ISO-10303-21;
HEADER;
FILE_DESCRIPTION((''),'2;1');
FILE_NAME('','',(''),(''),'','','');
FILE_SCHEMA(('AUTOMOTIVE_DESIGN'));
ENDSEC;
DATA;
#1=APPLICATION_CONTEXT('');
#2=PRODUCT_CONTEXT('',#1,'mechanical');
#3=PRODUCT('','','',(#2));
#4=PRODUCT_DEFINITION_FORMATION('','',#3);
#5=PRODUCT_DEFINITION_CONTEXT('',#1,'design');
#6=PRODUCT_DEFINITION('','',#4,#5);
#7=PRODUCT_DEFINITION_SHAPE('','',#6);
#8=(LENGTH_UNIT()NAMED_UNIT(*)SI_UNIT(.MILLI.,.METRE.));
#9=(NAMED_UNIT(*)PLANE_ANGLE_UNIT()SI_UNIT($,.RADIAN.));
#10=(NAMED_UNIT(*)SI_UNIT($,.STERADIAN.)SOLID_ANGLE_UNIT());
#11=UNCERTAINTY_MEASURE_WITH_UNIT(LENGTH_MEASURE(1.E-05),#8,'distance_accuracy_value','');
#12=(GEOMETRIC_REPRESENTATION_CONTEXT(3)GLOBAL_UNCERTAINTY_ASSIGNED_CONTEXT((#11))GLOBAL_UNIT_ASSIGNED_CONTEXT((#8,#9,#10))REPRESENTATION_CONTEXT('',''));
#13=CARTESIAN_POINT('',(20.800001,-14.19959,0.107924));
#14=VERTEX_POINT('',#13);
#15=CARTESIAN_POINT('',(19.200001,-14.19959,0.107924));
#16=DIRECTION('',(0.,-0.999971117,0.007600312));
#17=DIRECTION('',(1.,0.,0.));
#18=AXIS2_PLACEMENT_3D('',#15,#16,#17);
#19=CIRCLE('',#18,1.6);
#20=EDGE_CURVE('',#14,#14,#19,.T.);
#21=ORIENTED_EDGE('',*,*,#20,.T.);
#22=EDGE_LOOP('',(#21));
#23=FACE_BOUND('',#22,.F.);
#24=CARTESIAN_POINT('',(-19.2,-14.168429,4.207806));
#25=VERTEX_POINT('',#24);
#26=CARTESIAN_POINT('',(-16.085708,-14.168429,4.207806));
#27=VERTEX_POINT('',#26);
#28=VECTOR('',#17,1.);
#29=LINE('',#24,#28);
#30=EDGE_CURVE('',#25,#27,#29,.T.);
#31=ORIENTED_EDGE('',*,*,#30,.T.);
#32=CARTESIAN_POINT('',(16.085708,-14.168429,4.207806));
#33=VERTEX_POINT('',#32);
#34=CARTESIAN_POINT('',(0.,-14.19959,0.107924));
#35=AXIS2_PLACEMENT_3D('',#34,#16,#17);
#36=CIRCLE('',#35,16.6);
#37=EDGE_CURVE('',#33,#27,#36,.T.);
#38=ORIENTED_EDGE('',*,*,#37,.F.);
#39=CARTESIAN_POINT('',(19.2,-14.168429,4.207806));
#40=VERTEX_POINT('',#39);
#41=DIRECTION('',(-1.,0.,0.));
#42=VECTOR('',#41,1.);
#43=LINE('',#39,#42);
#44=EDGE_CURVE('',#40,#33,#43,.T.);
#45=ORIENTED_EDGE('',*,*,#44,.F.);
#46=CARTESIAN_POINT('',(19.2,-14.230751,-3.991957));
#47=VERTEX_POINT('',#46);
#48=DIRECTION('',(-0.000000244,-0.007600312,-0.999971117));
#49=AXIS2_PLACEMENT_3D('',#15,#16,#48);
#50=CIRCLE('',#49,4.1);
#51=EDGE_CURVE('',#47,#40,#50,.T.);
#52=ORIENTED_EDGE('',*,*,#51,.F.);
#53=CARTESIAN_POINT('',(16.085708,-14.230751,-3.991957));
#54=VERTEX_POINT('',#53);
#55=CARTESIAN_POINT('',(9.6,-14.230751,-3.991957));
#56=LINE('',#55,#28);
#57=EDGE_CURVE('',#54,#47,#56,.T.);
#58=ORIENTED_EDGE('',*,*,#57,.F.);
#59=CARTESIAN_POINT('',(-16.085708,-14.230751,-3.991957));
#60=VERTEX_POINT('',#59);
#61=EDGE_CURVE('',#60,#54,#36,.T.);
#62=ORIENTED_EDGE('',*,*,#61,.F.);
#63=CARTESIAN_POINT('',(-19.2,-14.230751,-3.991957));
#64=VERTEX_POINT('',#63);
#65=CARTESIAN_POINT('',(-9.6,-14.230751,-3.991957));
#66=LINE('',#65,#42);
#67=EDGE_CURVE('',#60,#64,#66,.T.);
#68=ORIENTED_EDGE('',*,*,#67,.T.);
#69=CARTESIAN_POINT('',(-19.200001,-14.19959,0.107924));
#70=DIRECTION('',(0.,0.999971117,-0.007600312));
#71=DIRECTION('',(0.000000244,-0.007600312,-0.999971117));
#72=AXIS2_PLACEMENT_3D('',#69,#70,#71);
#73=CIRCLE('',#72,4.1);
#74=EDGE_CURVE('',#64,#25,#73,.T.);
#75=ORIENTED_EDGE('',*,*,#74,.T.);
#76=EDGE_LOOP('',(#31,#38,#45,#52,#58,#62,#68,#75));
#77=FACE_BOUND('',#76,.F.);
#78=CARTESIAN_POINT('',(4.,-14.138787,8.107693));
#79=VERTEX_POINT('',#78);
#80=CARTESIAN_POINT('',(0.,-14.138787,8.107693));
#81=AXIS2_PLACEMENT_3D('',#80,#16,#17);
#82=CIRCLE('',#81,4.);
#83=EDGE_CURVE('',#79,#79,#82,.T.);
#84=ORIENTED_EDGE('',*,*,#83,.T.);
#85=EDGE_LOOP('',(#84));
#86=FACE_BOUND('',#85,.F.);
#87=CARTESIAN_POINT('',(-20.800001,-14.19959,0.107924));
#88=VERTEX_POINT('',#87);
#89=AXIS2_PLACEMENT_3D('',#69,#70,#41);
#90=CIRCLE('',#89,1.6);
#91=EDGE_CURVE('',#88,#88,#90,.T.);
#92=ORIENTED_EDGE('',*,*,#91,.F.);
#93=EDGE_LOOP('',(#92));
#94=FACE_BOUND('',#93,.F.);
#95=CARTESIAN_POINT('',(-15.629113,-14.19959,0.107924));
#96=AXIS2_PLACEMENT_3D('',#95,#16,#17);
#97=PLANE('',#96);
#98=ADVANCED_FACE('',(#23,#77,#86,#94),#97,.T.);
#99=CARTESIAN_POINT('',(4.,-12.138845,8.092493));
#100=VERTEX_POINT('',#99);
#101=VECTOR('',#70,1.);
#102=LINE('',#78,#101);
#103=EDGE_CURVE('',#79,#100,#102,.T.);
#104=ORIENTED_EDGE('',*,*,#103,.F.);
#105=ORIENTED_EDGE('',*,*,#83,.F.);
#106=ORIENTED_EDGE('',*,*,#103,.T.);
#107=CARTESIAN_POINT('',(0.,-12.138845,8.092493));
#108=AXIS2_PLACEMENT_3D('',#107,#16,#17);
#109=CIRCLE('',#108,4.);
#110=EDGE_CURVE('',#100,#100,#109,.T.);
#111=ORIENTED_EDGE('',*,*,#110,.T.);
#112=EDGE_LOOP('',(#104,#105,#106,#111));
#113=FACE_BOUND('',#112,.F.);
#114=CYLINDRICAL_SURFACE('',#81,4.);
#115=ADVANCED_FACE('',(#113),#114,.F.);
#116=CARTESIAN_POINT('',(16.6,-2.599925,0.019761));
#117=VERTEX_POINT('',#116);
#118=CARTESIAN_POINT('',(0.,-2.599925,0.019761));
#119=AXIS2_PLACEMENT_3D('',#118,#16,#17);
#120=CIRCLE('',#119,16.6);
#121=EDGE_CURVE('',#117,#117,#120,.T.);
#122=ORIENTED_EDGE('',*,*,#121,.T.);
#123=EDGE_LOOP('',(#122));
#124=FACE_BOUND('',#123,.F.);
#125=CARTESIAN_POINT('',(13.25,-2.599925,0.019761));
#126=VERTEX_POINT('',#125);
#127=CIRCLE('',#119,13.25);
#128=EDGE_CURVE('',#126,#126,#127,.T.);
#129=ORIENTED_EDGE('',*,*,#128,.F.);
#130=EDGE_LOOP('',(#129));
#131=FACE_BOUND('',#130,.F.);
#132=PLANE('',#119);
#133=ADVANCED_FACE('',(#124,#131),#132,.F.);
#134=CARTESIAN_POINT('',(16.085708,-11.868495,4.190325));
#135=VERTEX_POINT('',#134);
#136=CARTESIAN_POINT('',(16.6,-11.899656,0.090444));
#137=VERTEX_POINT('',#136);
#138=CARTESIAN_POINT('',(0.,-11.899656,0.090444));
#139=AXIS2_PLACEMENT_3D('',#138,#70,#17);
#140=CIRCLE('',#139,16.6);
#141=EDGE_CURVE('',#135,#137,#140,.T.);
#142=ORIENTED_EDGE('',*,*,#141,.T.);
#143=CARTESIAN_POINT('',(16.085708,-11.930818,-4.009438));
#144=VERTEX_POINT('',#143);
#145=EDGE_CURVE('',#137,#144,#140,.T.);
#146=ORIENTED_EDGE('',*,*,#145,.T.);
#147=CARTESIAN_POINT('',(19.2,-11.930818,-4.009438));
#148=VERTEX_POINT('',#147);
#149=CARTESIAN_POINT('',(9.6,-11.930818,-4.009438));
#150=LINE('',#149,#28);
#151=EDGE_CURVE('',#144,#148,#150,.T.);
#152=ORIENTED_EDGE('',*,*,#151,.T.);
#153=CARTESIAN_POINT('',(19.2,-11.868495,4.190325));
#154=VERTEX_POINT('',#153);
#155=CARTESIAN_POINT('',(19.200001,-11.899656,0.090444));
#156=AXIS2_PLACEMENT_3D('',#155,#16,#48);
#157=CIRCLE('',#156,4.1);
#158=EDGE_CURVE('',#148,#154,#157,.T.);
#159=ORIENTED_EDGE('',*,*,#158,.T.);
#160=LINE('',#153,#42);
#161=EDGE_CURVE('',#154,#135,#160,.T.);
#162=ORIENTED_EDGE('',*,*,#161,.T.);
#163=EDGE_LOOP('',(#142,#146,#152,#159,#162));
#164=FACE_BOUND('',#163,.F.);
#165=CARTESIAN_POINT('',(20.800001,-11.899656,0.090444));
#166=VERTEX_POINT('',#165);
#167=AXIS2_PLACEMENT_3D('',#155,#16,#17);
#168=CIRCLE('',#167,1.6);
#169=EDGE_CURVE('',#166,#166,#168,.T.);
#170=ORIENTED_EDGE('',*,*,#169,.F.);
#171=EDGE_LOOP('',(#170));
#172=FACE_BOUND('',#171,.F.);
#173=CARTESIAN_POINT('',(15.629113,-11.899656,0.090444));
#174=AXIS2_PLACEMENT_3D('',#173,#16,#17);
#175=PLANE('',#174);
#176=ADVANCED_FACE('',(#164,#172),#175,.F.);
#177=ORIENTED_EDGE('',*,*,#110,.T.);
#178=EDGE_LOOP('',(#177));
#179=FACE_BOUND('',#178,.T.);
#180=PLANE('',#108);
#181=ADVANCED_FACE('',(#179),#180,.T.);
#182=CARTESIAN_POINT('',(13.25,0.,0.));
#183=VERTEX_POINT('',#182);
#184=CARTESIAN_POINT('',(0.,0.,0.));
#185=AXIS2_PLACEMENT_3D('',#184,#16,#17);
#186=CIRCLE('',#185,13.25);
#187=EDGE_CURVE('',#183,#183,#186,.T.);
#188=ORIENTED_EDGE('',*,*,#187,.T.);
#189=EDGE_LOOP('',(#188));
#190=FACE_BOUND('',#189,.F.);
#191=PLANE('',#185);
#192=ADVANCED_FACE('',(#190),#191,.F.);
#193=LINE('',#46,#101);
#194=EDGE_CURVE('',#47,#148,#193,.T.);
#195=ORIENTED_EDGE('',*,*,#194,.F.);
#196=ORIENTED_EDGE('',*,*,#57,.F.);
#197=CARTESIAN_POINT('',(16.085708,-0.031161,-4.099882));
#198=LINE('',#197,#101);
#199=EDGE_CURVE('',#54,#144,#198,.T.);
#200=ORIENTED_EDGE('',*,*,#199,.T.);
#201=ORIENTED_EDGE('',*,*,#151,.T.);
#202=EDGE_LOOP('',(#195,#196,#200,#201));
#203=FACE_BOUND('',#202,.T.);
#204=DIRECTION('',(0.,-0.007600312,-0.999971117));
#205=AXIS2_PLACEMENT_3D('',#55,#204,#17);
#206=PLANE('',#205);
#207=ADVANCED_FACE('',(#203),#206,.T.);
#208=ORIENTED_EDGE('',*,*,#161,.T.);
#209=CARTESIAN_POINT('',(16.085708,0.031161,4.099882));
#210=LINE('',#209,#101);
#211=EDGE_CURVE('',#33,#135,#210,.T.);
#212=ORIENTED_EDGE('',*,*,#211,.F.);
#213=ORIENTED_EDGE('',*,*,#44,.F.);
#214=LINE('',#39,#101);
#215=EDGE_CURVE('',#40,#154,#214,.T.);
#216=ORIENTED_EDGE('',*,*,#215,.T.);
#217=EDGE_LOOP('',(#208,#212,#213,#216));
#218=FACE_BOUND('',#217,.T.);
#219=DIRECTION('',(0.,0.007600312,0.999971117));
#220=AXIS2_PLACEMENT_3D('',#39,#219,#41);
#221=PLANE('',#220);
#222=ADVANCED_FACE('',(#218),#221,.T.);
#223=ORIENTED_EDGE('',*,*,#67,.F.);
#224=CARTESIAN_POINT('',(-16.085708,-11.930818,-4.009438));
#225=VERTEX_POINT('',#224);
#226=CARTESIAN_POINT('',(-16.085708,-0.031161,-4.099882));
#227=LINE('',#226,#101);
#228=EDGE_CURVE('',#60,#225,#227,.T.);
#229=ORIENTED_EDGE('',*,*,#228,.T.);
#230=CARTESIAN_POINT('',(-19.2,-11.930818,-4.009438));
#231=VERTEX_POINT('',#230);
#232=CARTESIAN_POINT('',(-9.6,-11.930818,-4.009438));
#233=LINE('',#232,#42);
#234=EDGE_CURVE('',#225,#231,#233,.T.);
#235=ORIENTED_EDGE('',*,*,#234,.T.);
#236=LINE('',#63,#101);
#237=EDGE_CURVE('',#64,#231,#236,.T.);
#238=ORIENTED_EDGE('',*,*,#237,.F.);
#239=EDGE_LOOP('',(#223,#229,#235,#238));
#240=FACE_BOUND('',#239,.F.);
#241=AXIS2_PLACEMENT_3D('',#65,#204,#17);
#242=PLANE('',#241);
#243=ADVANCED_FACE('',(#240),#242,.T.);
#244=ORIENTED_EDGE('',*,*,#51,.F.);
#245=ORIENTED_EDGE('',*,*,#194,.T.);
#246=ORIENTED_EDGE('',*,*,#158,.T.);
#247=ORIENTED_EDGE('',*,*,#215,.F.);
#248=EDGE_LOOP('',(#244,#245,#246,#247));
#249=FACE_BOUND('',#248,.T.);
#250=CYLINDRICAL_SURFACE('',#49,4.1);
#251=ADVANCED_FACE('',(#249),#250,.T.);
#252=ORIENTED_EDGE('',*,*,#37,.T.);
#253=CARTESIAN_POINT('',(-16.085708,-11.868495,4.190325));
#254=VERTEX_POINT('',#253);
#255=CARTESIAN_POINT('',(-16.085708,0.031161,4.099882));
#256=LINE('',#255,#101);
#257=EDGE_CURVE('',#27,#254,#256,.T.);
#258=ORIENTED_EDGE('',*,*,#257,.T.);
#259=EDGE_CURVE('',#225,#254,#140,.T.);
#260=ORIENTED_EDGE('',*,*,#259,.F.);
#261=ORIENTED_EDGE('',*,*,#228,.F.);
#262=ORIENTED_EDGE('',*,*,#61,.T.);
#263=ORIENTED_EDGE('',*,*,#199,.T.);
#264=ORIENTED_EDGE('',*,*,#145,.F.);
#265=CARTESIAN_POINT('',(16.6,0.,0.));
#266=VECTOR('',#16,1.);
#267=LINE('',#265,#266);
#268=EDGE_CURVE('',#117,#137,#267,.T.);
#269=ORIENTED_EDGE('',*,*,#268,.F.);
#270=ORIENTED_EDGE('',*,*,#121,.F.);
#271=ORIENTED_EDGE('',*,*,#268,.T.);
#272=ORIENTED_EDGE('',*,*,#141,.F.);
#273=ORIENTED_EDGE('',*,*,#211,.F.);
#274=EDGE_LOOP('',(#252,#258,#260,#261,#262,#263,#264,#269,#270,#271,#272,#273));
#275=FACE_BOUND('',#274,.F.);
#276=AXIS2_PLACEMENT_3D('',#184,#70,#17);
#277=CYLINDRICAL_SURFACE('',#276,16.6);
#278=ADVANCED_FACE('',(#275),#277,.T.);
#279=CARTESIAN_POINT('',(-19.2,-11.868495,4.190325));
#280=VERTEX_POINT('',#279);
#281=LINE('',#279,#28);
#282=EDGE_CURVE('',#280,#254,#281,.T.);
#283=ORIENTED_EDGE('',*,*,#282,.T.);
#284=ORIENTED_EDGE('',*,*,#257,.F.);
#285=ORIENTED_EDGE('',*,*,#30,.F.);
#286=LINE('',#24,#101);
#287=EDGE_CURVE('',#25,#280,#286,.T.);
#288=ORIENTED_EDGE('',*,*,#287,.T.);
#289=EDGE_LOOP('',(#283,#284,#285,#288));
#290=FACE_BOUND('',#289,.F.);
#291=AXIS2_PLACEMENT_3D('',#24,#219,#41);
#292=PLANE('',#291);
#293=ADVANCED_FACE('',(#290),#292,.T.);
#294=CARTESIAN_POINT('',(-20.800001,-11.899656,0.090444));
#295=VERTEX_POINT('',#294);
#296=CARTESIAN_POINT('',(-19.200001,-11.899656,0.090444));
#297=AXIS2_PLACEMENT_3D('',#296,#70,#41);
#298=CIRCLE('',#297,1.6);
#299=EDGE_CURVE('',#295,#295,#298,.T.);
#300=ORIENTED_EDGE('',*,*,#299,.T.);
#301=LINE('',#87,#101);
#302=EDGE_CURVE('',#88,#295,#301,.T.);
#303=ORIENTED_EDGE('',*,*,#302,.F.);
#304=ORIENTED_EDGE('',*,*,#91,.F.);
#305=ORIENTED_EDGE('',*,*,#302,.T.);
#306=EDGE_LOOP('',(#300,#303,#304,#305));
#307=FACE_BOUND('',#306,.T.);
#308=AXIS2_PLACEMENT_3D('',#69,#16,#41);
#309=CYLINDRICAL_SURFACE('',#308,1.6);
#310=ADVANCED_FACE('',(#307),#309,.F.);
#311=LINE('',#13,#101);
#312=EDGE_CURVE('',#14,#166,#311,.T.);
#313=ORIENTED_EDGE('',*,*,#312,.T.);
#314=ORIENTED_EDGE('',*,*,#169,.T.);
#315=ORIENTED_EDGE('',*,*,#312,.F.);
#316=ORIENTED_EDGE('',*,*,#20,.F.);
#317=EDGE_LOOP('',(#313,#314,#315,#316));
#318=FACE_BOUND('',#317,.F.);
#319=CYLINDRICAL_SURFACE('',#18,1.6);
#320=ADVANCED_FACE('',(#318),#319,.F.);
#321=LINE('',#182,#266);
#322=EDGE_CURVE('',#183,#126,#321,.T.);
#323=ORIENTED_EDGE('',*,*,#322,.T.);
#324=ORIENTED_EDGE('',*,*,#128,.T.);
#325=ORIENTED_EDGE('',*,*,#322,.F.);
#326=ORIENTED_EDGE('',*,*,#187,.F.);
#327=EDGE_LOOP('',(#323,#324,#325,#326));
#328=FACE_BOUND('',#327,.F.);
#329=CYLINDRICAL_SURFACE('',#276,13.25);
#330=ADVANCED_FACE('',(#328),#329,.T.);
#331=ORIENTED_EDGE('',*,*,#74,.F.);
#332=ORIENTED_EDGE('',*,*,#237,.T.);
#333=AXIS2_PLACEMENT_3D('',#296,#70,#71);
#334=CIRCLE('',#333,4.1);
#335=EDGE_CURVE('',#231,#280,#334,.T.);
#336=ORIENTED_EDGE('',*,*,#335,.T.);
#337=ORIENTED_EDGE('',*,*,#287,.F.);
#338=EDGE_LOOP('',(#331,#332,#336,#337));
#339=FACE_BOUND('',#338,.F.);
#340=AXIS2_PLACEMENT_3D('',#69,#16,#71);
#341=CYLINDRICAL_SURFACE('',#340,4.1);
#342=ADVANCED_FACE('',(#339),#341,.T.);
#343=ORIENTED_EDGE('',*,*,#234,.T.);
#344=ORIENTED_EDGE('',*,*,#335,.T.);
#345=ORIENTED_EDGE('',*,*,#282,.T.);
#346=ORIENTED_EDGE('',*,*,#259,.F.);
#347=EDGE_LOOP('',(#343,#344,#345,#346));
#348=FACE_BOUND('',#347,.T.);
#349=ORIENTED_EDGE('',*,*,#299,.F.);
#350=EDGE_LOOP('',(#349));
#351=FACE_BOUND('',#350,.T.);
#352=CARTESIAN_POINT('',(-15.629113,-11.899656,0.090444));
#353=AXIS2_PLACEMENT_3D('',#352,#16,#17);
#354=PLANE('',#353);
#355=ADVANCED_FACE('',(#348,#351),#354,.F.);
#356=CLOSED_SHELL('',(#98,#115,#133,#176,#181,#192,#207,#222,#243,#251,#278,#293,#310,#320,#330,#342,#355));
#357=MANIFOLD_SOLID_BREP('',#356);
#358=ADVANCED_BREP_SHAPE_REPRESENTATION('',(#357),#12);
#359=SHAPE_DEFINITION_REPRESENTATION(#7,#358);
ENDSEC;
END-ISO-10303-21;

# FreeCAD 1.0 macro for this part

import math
import FreeCAD as App
import Part
import Sketcher
from FreeCAD import Vector

doc = App.newDocument("Part")
body = doc.addObject("PartDesign::Body", "Body")

# Sketch on XZ plane
sketch1 = body.newObject("Sketcher::SketchObject", "Sketch")
sketch1.AttachmentSupport = (doc.getObject("XZ_Plane"), [""])
sketch1.MapMode = "FlatFace"
sketch1.addGeometry(Part.Circle(Vector(0, 0, 0), Vector(0, 0, 1), 17), False)
sketch1.addConstraint(Sketcher.Constraint("Coincident", 0, 3, -1, 1))
sketch1.addConstraint(Sketcher.Constraint("Diameter", 0, 33.2))
pad1 = body.newObject("PartDesign::Pad", "Pad")
pad1.Profile = sketch1
pad1.Length = 14.2

# Sketch on XZ plane
sketch2 = body.newObject("Sketcher::SketchObject", "Sketch001")
sketch2.AttachmentSupport = (doc.getObject("XZ_Plane"), [""])
sketch2.MapMode = "FlatFace"
sketch2.addGeometry(Part.Circle(Vector(0, 0, 0), Vector(0, 0, 1), 17), False)
sketch2.addGeometry(Part.Circle(Vector(0, 0, 0), Vector(0, 0, 1), 13), False)
sketch2.addConstraint(Sketcher.Constraint("Coincident", 0, 3, -1, 1))
sketch2.addConstraint(Sketcher.Constraint("Coincident", 1, 3, -1, 1))
sketch2.addConstraint(Sketcher.Constraint("Diameter", 0, 33.2))
sketch2.addConstraint(Sketcher.Constraint("Diameter", 1, 26.5))
pocket1 = body.newObject("PartDesign::Pocket", "Pocket")
pocket1.Profile = sketch2
pocket1.Length = 2.6
pocket1.Reversed = True

# Sketch on XZ plane
sketch3 = body.newObject("Sketcher::SketchObject", "Sketch002")
sketch3.AttachmentSupport = (doc.getObject("XZ_Plane"), [""])
sketch3.MapMode = "FlatFace"
sketch3.AttachmentOffset = App.Placement(Vector(0, 0, 14.2), App.Rotation())
sketch3.addGeometry(Part.Circle(Vector(0, 8, 0), Vector(0, 0, 1), 4), False)
sketch3.addConstraint(Sketcher.Constraint("PointOnObject", 0, 3, -2))
sketch3.addConstraint(Sketcher.Constraint("Diameter", 0, 8.0))
sketch3.addConstraint(Sketcher.Constraint("DistanceY", -1, 1, 0, 3, 8.0))
pocket2 = body.newObject("PartDesign::Pocket", "Pocket001")
pocket2.Profile = sketch3
pocket2.Length = 2

# Sketch on XZ plane
sketch4 = body.newObject("Sketcher::SketchObject", "Sketch003")
sketch4.AttachmentSupport = (doc.getObject("XZ_Plane"), [""])
sketch4.MapMode = "FlatFace"
sketch4.AttachmentOffset = App.Placement(Vector(0, 0, 14.2), App.Rotation())
sketch4.addGeometry(Part.ArcOfCircle(Part.Circle(Vector(19.2, 0, 0), Vector(0, 0, 1), 4.1), math.radians(-90), math.radians(90)), False)
sketch4.addGeometry(Part.LineSegment(Vector(19.2, 4.1, 0), Vector(9.6, 4.1, 0)), False)
sketch4.addGeometry(Part.LineSegment(Vector(9.6, 4.1, 0), Vector(9.6, -4.1, 0)), False)
sketch4.addGeometry(Part.LineSegment(Vector(9.6, -4.1, 0), Vector(19.2, -4.1, 0)), False)
sketch4.addGeometry(Part.Circle(Vector(19.2, 0, 0), Vector(0, 0, 1), 1.6), False)
sketch4.addConstraint(Sketcher.Constraint("Tangent", 0, 2, 1, 1))
sketch4.addConstraint(Sketcher.Constraint("Coincident", 1, 2, 2, 1))
sketch4.addConstraint(Sketcher.Constraint("Coincident", 2, 2, 3, 1))
sketch4.addConstraint(Sketcher.Constraint("Tangent", 3, 2, 0, 1))
sketch4.addConstraint(Sketcher.Constraint("Horizontal", 1))
sketch4.addConstraint(Sketcher.Constraint("Vertical", 2))
sketch4.addConstraint(Sketcher.Constraint("Horizontal", 3))
sketch4.addConstraint(Sketcher.Constraint("Coincident", 4, 3, 0, 3))
sketch4.addConstraint(Sketcher.Constraint("PointOnObject", 0, 3, -1))
sketch4.addConstraint(Sketcher.Constraint("Diameter", 4, 3.2))
sketch4.addConstraint(Sketcher.Constraint("Radius", 0, 4.1))
sketch4.addConstraint(Sketcher.Constraint("DistanceX", 1, 2, 1, 1, 9.6))
sketch4.addConstraint(Sketcher.Constraint("DistanceX", -1, 1, 0, 3, 19.200001))
pad2 = body.newObject("PartDesign::Pad", "Pad001")
pad2.Profile = sketch4
pad2.Length = 2.3
pad2.Reversed = True
doc.recompute()

mirrored = body.newObject("PartDesign::Mirrored", "Mirrored")
mirrored.Originals = [pad2]
mirrored.MirrorPlane = (doc.getObject("YZ_Plane"), [""])
body.Tip = mirrored
body2 = doc.addObject("PartDesign::Body", "Body001")
doc.recompute()

body.Placement = App.Placement(Vector(0, 0, 0), App.Rotation(Vector(1, 0, 0), 359.56453))
boolean = body2.newObject("PartDesign::Boolean", "Boolean")
boolean.Type = "Fuse"
boolean.addObjects([body])
body3 = doc.addObject("PartDesign::Body", "Body002")
doc.recompute()

body2.Placement = App.Placement(Vector(0, 0, 0), App.Rotation(Vector(0, 0, 1), 0))
boolean2 = body3.newObject("PartDesign::Boolean", "Boolean001")
boolean2.Type = "Fuse"
boolean2.addObjects([body2])

doc.recompute()
